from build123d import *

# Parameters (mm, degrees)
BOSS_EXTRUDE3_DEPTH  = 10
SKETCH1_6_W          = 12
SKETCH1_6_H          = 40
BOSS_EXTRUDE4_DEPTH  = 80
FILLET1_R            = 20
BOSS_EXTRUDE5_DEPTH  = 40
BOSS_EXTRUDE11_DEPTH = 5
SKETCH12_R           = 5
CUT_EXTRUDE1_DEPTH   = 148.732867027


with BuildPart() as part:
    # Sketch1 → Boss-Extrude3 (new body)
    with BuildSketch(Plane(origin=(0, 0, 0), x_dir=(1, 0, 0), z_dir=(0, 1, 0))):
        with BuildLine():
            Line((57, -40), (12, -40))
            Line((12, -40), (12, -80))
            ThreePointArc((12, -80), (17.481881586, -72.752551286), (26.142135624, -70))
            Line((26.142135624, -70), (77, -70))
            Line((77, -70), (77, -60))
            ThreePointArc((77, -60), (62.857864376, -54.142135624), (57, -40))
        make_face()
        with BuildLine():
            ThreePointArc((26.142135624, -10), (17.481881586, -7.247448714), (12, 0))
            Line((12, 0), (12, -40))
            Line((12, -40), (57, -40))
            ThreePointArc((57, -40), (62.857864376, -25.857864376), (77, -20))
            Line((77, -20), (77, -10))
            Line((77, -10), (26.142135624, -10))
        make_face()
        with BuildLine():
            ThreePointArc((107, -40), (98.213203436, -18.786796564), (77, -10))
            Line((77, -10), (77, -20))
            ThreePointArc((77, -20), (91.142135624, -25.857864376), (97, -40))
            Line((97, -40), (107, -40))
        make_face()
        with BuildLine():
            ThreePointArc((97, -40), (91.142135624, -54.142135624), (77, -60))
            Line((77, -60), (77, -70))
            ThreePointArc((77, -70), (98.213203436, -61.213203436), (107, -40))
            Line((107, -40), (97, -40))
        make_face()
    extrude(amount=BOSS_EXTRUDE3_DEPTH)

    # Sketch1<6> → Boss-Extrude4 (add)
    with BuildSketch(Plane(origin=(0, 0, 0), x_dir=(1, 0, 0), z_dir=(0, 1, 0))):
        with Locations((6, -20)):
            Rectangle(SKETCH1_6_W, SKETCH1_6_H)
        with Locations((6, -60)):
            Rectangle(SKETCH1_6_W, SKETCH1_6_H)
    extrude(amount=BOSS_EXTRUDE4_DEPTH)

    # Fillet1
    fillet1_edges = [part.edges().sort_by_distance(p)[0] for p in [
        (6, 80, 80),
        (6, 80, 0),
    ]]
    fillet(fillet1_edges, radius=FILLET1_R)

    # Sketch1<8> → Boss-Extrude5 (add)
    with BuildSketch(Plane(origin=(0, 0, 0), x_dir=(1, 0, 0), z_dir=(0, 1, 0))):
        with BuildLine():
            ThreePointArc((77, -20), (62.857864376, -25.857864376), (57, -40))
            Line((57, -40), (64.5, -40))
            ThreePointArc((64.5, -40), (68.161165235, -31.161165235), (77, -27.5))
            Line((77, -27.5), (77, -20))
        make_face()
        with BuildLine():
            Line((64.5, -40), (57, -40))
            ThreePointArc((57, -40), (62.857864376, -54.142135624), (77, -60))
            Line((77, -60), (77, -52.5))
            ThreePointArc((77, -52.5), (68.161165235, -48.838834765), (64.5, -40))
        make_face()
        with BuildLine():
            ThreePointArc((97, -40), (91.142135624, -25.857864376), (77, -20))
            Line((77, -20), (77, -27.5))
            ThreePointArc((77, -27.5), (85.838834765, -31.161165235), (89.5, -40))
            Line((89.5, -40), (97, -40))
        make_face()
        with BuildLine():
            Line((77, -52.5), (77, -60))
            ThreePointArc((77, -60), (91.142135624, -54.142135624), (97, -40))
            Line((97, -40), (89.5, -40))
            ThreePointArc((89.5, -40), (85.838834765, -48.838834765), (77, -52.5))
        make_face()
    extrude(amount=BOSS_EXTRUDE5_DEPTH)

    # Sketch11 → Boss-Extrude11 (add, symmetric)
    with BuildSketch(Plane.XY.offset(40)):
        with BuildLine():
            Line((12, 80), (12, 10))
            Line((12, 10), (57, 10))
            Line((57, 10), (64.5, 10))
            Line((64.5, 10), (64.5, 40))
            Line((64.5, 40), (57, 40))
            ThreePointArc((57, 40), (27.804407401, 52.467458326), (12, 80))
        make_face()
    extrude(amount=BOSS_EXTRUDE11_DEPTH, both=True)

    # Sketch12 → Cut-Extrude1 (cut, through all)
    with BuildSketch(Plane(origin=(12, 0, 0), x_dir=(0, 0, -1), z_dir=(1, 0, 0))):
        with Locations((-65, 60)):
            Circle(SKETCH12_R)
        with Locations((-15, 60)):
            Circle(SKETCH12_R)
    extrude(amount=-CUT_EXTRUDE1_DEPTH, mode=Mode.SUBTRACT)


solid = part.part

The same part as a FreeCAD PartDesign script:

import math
import FreeCAD as App
import Part
import Sketcher

V = App.Vector


def edges_at(feature, points):
    """Names of the edges that pass closest to the given points."""
    edges = feature.Shape.Edges
    near = lambda p: min(range(len(edges)), key=lambda i: edges[i].distToShape(Part.Vertex(*p))[0])
    return sorted({f"Edge{near(p) + 1}" for p in points})

doc = App.newDocument("Part")
body = doc.addObject("PartDesign::Body", "Body")

# Sketch on XZ plane
sketch1 = body.newObject("Sketcher::SketchObject", "Sketch")
sketch1.AttachmentSupport = (doc.getObject("XZ_Plane"), [""])
sketch1.MapMode = "FlatFace"
sketch1.addGeometry(Part.ArcOfCircle(Part.Circle(V(26, -5, 0), V(0, 0, 1), 15), math.radians(90), math.radians(161)), False)
sketch1.addGeometry(Part.LineSegment(V(12, 0, 0), V(12, 80, 0)), False)
sketch1.addGeometry(Part.ArcOfCircle(Part.Circle(V(26, 85, 0), V(0, 0, 1), 15), math.radians(-161), math.radians(-90)), False)
sketch1.addGeometry(Part.LineSegment(V(26, 70, 0), V(77, 70, 0)), False)
sketch1.addGeometry(Part.ArcOfCircle(Part.Circle(V(77, 40, 0), V(0, 0, 1), 30), math.radians(0), math.radians(90)), False)
sketch1.addGeometry(Part.ArcOfCircle(Part.Circle(V(77, 40, 0), V(0, 0, 1), 30), math.radians(-90), math.radians(0)), False)
sketch1.addGeometry(Part.LineSegment(V(77, 10, 0), V(26, 10, 0)), False)
sketch1.addGeometry(Part.ArcOfCircle(Part.Circle(V(77, 40, 0), V(0, 0, 1), 20), math.radians(-90), math.radians(0)), False)
sketch1.addGeometry(Part.ArcOfCircle(Part.Circle(V(77, 40, 0), V(0, 0, 1), 20), math.radians(0), math.radians(90)), False)
sketch1.addGeometry(Part.ArcOfCircle(Part.Circle(V(77, 40, 0), V(0, 0, 1), 20), math.radians(90), math.radians(180)), False)
sketch1.addGeometry(Part.ArcOfCircle(Part.Circle(V(77, 40, 0), V(0, 0, 1), 20), math.radians(180), math.radians(270)), False)
sketch1.addConstraint(Sketcher.Constraint("Coincident", 0, 2, 1, 1))
sketch1.addConstraint(Sketcher.Constraint("Coincident", 1, 2, 2, 1))
sketch1.addConstraint(Sketcher.Constraint("Tangent", 2, 2, 3, 1))
sketch1.addConstraint(Sketcher.Constraint("Tangent", 3, 2, 4, 2))
sketch1.addConstraint(Sketcher.Constraint("Tangent", 4, 1, 5, 2))
sketch1.addConstraint(Sketcher.Constraint("Tangent", 5, 1, 6, 1))
sketch1.addConstraint(Sketcher.Constraint("Tangent", 6, 2, 0, 1))
sketch1.addConstraint(Sketcher.Constraint("Tangent", 7, 2, 8, 1))
sketch1.addConstraint(Sketcher.Constraint("Tangent", 8, 2, 9, 1))
sketch1.addConstraint(Sketcher.Constraint("Tangent", 9, 2, 10, 1))
sketch1.addConstraint(Sketcher.Constraint("Tangent", 10, 2, 7, 1))
sketch1.addConstraint(Sketcher.Constraint("Vertical", 1))
sketch1.addConstraint(Sketcher.Constraint("Horizontal", 3))
sketch1.addConstraint(Sketcher.Constraint("Horizontal", 6))
sketch1.addConstraint(Sketcher.Constraint("Coincident", 7, 3, 4, 3))
sketch1.addConstraint(Sketcher.Constraint("Equal", 0, 2))
sketch1.addConstraint(Sketcher.Constraint("Equal", 4, 5))
sketch1.addConstraint(Sketcher.Constraint("Equal", 7, 8))
sketch1.addConstraint(Sketcher.Constraint("PointOnObject", 0, 2, -1))
sketch1.addConstraint(Sketcher.Constraint("Horizontal", 10, 3, 4, 1))
sketch1.addConstraint(Sketcher.Constraint("Horizontal", 4, 1, 7, 2))
sketch1.addConstraint(Sketcher.Constraint("Horizontal", 7, 2, 9, 2))
sketch1.addConstraint(Sketcher.Constraint("Vertical", 0, 3, 2, 3))
sketch1.addConstraint(Sketcher.Constraint("Vertical", 5, 1, 8, 2))
sketch1.addConstraint(Sketcher.Constraint("Vertical", 8, 2, 10, 2))
sketch1.addConstraint(Sketcher.Constraint("Radius", 0, 15.0))
sketch1.addConstraint(Sketcher.Constraint("Radius", 4, 30.0))
sketch1.addConstraint(Sketcher.Constraint("Radius", 7, 20.0))
sketch1.addConstraint(Sketcher.Constraint("DistanceY", 1, 1, 1, 2, 80.0))
sketch1.addConstraint(Sketcher.Constraint("DistanceX", -1, 1, 4, 3, 77.0))
sketch1.addConstraint(Sketcher.Constraint("DistanceX", -1, 1, 0, 2, 12.0))
pad1 = body.newObject("PartDesign::Pad", "Pad")
pad1.Profile = sketch1
pad1.Length = 10
pad1.Reversed = True

# Sketch on XZ plane
sketch2 = body.newObject("Sketcher::SketchObject", "Sketch001")
sketch2.AttachmentSupport = (doc.getObject("XZ_Plane"), [""])
sketch2.MapMode = "FlatFace"
sketch2.addGeometry(Part.LineSegment(V(0, 0, 0), V(0, 80, 0)), False)
sketch2.addGeometry(Part.LineSegment(V(0, 80, 0), V(12, 80, 0)), False)
sketch2.addGeometry(Part.LineSegment(V(12, 80, 0), V(12, 0, 0)), False)
sketch2.addGeometry(Part.LineSegment(V(12, 0, 0), V(0, 0, 0)), False)
sketch2.addConstraint(Sketcher.Constraint("Coincident", 0, 2, 1, 1))
sketch2.addConstraint(Sketcher.Constraint("Coincident", 1, 2, 2, 1))
sketch2.addConstraint(Sketcher.Constraint("Coincident", 2, 2, 3, 1))
sketch2.addConstraint(Sketcher.Constraint("Coincident", 3, 2, 0, 1))
sketch2.addConstraint(Sketcher.Constraint("Vertical", 0))
sketch2.addConstraint(Sketcher.Constraint("Horizontal", 1))
sketch2.addConstraint(Sketcher.Constraint("Vertical", 2))
sketch2.addConstraint(Sketcher.Constraint("Horizontal", 3))
sketch2.addConstraint(Sketcher.Constraint("Coincident", 3, 2, -1, 1))
sketch2.addConstraint(Sketcher.Constraint("DistanceX", 1, 1, 1, 2, 12.0))
sketch2.addConstraint(Sketcher.Constraint("DistanceY", 0, 1, 0, 2, 80.0))
pad2 = body.newObject("PartDesign::Pad", "Pad001")
pad2.Profile = sketch2
pad2.Length = 80
pad2.Reversed = True
doc.recompute()

fillet = body.newObject("PartDesign::Fillet", "Fillet")
fillet.Base = (pad2, edges_at(pad2, [(6, 80, 80), (6, 80, 0)]))
fillet.Radius = 20

# Sketch on XZ plane
sketch3 = body.newObject("Sketcher::SketchObject", "Sketch002")
sketch3.AttachmentSupport = (doc.getObject("XZ_Plane"), [""])
sketch3.MapMode = "FlatFace"
sketch3.addGeometry(Part.ArcOfCircle(Part.Circle(V(77, 40, 0), V(0, 0, 1), 20), math.radians(180), math.radians(270)), False)
sketch3.addGeometry(Part.ArcOfCircle(Part.Circle(V(77, 40, 0), V(0, 0, 1), 20), math.radians(90), math.radians(180)), False)
sketch3.addGeometry(Part.ArcOfCircle(Part.Circle(V(77, 40, 0), V(0, 0, 1), 20), math.radians(0), math.radians(90)), False)
sketch3.addGeometry(Part.ArcOfCircle(Part.Circle(V(77, 40, 0), V(0, 0, 1), 20), math.radians(-90), math.radians(0)), False)
sketch3.addGeometry(Part.ArcOfCircle(Part.Circle(V(77, 40, 0), V(0, 0, 1), 12), math.radians(-90), math.radians(0)), False)
sketch3.addGeometry(Part.ArcOfCircle(Part.Circle(V(77, 40, 0), V(0, 0, 1), 12), math.radians(0), math.radians(90)), False)
sketch3.addGeometry(Part.ArcOfCircle(Part.Circle(V(77, 40, 0), V(0, 0, 1), 12), math.radians(90), math.radians(180)), False)
sketch3.addGeometry(Part.ArcOfCircle(Part.Circle(V(77, 40, 0), V(0, 0, 1), 12), math.radians(180), math.radians(270)), False)
sketch3.addConstraint(Sketcher.Constraint("Tangent", 0, 1, 1, 2))
sketch3.addConstraint(Sketcher.Constraint("Tangent", 1, 1, 2, 2))
sketch3.addConstraint(Sketcher.Constraint("Tangent", 2, 1, 3, 2))
sketch3.addConstraint(Sketcher.Constraint("Tangent", 3, 1, 0, 2))
sketch3.addConstraint(Sketcher.Constraint("Tangent", 4, 2, 5, 1))
sketch3.addConstraint(Sketcher.Constraint("Tangent", 5, 2, 6, 1))
sketch3.addConstraint(Sketcher.Constraint("Tangent", 6, 2, 7, 1))
sketch3.addConstraint(Sketcher.Constraint("Tangent", 7, 2, 4, 1))
sketch3.addConstraint(Sketcher.Constraint("Coincident", 4, 3, 0, 3))
sketch3.addConstraint(Sketcher.Constraint("Equal", 0, 1))
sketch3.addConstraint(Sketcher.Constraint("Equal", 4, 5))
sketch3.addConstraint(Sketcher.Constraint("Horizontal", 7, 3, 0, 1))
sketch3.addConstraint(Sketcher.Constraint("Horizontal", 0, 1, 2, 1))
sketch3.addConstraint(Sketcher.Constraint("Horizontal", 2, 1, 4, 2))
sketch3.addConstraint(Sketcher.Constraint("Horizontal", 4, 2, 6, 2))
sketch3.addConstraint(Sketcher.Constraint("Vertical", 7, 3, 1, 1))
sketch3.addConstraint(Sketcher.Constraint("Vertical", 1, 1, 3, 1))
sketch3.addConstraint(Sketcher.Constraint("Vertical", 3, 1, 5, 2))
sketch3.addConstraint(Sketcher.Constraint("Vertical", 5, 2, 7, 2))
sketch3.addConstraint(Sketcher.Constraint("Radius", 0, 20.0))
sketch3.addConstraint(Sketcher.Constraint("Radius", 4, 12.5))
sketch3.addConstraint(Sketcher.Constraint("DistanceX", -1, 1, 0, 3, 77.0))
sketch3.addConstraint(Sketcher.Constraint("DistanceY", -1, 1, 0, 3, 40.0))
pad3 = body.newObject("PartDesign::Pad", "Pad002")
pad3.Profile = sketch3
pad3.Length = 40
pad3.Reversed = True

# Sketch on XY plane
sketch4 = body.newObject("Sketcher::SketchObject", "Sketch003")
sketch4.AttachmentSupport = (doc.getObject("XY_Plane"), [""])
sketch4.MapMode = "FlatFace"
sketch4.AttachmentOffset = App.Placement(V(0, 0, 40), App.Rotation())
sketch4.addGeometry(Part.LineSegment(V(12, 80, 0), V(12, 10, 0)), False)
sketch4.addGeometry(Part.LineSegment(V(12, 10, 0), V(64, 10, 0)), False)
sketch4.addGeometry(Part.LineSegment(V(64, 10, 0), V(64, 40, 0)), False)
sketch4.addGeometry(Part.LineSegment(V(64, 40, 0), V(57, 40, 0)), False)
sketch4.addGeometry(Part.ArcOfCircle(Part.Circle(V(61, 90, 0), V(0, 0, 1), 50), math.radians(-169), math.radians(-95)), False)
sketch4.addConstraint(Sketcher.Constraint("Coincident", 0, 2, 1, 1))
sketch4.addConstraint(Sketcher.Constraint("Coincident", 1, 2, 2, 1))
sketch4.addConstraint(Sketcher.Constraint("Coincident", 2, 2, 3, 1))
sketch4.addConstraint(Sketcher.Constraint("Coincident", 3, 2, 4, 2))
sketch4.addConstraint(Sketcher.Constraint("Coincident", 4, 1, 0, 1))
sketch4.addConstraint(Sketcher.Constraint("Vertical", 0))
sketch4.addConstraint(Sketcher.Constraint("Horizontal", 1))
sketch4.addConstraint(Sketcher.Constraint("Vertical", 2))
sketch4.addConstraint(Sketcher.Constraint("Horizontal", 3))
sketch4.addConstraint(Sketcher.Constraint("Radius", 4, 50.0))
sketch4.addConstraint(Sketcher.Constraint("DistanceY", 0, 2, 0, 1, 70.0))
sketch4.addConstraint(Sketcher.Constraint("DistanceY", 2, 1, 2, 2, 30.0))
sketch4.addConstraint(Sketcher.Constraint("DistanceX", 1, 1, 1, 2, 52.5))
sketch4.addConstraint(Sketcher.Constraint("DistanceX", 3, 2, 3, 1, 7.5))
sketch4.addConstraint(Sketcher.Constraint("DistanceX", -1, 1, 0, 2, 12.0))
sketch4.addConstraint(Sketcher.Constraint("DistanceY", -1, 1, 0, 2, 10.0))
pad4 = body.newObject("PartDesign::Pad", "Pad003")
pad4.Profile = sketch4
pad4.Length = 10
pad4.Midplane = True

# Sketch on YZ plane
sketch5 = body.newObject("Sketcher::SketchObject", "Sketch004")
sketch5.AttachmentSupport = (doc.getObject("YZ_Plane"), [""])
sketch5.MapMode = "FlatFace"
sketch5.AttachmentOffset = App.Placement(V(0, 0, 12), App.Rotation())
sketch5.addGeometry(Part.Circle(V(60, 65, 0), V(0, 0, 1), 5), False)
sketch5.addGeometry(Part.Circle(V(60, 15, 0), V(0, 0, 1), 5), False)
sketch5.addConstraint(Sketcher.Constraint("Equal", 0, 1))
sketch5.addConstraint(Sketcher.Constraint("Vertical", 0, 3, 1, 3))
sketch5.addConstraint(Sketcher.Constraint("Diameter", 0, 10.0))
sketch5.addConstraint(Sketcher.Constraint("DistanceX", -1, 1, 0, 3, 60.0))
sketch5.addConstraint(Sketcher.Constraint("DistanceY", -1, 1, 0, 3, 65.0))
sketch5.addConstraint(Sketcher.Constraint("DistanceY", -1, 1, 1, 3, 15.0))
pocket1 = body.newObject("PartDesign::Pocket", "Pocket")
pocket1.Profile = sketch5
pocket1.Type = "ThroughAll"

doc.recompute()
